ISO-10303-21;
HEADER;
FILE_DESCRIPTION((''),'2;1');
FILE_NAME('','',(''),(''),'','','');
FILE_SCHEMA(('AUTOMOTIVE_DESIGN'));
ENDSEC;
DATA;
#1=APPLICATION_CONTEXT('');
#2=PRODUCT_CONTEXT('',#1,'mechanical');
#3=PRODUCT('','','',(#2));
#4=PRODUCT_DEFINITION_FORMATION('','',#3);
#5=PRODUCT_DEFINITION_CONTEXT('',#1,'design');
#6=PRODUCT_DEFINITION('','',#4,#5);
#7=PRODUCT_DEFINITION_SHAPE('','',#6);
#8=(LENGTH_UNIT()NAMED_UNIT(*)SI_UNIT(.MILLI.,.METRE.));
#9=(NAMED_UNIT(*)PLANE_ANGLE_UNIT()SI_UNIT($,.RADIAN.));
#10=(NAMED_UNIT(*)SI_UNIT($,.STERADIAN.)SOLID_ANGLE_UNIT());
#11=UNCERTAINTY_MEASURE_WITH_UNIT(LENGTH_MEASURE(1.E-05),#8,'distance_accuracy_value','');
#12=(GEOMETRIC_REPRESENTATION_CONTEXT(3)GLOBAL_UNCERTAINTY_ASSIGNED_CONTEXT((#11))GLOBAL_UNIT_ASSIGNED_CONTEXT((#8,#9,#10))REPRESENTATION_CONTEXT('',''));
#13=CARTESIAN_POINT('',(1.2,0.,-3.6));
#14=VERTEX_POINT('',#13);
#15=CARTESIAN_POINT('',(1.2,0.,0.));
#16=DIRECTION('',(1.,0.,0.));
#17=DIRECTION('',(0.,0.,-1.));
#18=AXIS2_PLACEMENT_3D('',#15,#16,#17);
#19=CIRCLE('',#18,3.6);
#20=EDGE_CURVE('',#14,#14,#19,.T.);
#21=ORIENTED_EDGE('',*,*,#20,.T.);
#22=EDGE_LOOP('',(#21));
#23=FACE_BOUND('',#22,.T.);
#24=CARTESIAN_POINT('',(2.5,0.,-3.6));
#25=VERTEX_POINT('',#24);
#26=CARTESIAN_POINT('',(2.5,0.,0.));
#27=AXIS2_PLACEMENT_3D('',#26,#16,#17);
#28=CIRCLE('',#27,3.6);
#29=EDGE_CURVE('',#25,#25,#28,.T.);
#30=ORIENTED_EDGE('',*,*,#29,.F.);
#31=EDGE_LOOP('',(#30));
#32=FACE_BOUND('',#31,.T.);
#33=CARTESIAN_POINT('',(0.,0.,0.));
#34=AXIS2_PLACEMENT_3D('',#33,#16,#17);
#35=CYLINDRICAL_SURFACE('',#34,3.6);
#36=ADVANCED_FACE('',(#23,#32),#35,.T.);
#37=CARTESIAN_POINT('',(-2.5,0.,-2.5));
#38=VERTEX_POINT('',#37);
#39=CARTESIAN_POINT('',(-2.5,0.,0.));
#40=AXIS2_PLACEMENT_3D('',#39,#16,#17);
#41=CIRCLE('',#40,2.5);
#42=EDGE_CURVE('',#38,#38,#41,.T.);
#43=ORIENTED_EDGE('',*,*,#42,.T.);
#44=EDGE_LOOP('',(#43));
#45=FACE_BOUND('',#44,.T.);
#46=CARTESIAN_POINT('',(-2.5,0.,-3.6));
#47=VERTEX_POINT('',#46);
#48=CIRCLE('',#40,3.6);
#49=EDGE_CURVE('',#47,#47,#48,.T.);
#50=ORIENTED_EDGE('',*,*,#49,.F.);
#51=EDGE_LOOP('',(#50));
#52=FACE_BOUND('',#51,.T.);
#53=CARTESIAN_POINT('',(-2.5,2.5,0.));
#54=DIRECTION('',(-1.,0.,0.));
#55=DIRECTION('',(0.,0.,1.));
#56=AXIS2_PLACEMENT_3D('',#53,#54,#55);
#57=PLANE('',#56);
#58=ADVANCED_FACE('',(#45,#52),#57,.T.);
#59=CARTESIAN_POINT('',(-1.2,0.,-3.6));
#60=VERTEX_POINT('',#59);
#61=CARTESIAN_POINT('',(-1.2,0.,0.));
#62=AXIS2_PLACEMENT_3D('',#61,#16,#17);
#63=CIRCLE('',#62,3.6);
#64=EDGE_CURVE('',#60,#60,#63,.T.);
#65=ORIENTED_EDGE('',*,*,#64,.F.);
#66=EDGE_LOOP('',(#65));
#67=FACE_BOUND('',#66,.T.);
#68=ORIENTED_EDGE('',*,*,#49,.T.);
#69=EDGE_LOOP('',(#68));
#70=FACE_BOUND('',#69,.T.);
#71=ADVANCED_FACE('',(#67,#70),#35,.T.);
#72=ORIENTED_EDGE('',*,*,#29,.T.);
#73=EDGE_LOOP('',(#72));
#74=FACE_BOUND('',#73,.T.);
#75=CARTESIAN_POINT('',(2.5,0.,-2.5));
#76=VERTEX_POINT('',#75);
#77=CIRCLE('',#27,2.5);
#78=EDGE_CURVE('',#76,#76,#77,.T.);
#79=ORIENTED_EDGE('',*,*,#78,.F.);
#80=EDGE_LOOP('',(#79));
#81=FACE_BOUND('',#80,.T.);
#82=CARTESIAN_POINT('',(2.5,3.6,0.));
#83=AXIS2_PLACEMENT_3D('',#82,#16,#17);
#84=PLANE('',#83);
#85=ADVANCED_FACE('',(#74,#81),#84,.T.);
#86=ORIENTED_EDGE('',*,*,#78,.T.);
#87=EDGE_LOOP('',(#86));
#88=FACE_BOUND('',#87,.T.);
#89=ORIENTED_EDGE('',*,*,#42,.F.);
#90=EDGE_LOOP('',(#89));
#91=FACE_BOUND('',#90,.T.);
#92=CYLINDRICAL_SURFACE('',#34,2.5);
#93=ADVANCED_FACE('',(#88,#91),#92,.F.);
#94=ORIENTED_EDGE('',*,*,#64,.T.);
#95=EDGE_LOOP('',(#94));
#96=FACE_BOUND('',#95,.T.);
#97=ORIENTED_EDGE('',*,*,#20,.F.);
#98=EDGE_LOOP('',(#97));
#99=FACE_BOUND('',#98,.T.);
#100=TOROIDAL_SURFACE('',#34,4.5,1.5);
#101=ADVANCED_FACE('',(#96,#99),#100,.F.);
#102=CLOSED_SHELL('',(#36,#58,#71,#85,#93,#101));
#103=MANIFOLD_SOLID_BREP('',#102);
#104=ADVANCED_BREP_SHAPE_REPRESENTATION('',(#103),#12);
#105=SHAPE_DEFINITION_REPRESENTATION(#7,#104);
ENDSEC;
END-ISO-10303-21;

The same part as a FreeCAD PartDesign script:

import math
import FreeCAD as App
import Part
import Sketcher

doc = App.newDocument("Part")
body = doc.addObject("PartDesign::Body", "Body")

# Sketch on XY plane
sketch1 = body.newObject("Sketcher::SketchObject", "Sketch")
sketch1.AttachmentSupport = (doc.getObject("XY_Plane"), [""])
sketch1.MapMode = "FlatFace"
sketch1.addGeometry([
    Part.LineSegment(App.Vector(-2.5, 2.5, 0), App.Vector(2.5, 2.5, 0)),  # 0
    Part.LineSegment(App.Vector(2.5, 2.5, 0), App.Vector(2.5, 3.6, 0)),  # 1
    Part.LineSegment(App.Vector(2.5, 3.6, 0), App.Vector(1.2, 3.6, 0)),  # 2
    Part.ArcOfCircle(Part.Circle(App.Vector(0, 4.5, 0), App.Vector(0, 0, 1), 1.5), math.radians(-143), math.radians(-37)),  # 3
    Part.LineSegment(App.Vector(-1.2, 3.6, 0), App.Vector(-2.5, 3.6, 0)),  # 4
    Part.LineSegment(App.Vector(-2.5, 3.6, 0), App.Vector(-2.5, 2.5, 0)),  # 5
], False)
sketch1.addConstraint([
    Sketcher.Constraint("Coincident", 0, 2, 1, 1),
    Sketcher.Constraint("Coincident", 1, 2, 2, 1),
    Sketcher.Constraint("Coincident", 2, 2, 3, 2),
    Sketcher.Constraint("Coincident", 3, 1, 4, 1),
    Sketcher.Constraint("Coincident", 4, 2, 5, 1),
    Sketcher.Constraint("Coincident", 5, 2, 0, 1),
    Sketcher.Constraint("Horizontal", 0),
    Sketcher.Constraint("Vertical", 1),
    Sketcher.Constraint("Horizontal", 2),
    Sketcher.Constraint("Horizontal", 4),
    Sketcher.Constraint("Vertical", 5),
    Sketcher.Constraint("Symmetric", 2, 2, 3, 1, -2),
    Sketcher.Constraint("Equal", 2, 4),
    Sketcher.Constraint("Radius", 3, 1.5),
    Sketcher.Constraint("DistanceX", 0, 1, 0, 2, 5.0),
    Sketcher.Constraint("DistanceX", 2, 2, 2, 1, 1.3),
    Sketcher.Constraint("DistanceY", 1, 1, 1, 2, 1.1),
    Sketcher.Constraint("DistanceY", -1, 1, 3, 3, 4.5),
])
revolution = body.newObject("PartDesign::Revolution", "Revolution")
revolution.Profile = sketch1
revolution.ReferenceAxis = (sketch1, ["H_Axis"])
revolution.Angle = 360

doc.recompute()
